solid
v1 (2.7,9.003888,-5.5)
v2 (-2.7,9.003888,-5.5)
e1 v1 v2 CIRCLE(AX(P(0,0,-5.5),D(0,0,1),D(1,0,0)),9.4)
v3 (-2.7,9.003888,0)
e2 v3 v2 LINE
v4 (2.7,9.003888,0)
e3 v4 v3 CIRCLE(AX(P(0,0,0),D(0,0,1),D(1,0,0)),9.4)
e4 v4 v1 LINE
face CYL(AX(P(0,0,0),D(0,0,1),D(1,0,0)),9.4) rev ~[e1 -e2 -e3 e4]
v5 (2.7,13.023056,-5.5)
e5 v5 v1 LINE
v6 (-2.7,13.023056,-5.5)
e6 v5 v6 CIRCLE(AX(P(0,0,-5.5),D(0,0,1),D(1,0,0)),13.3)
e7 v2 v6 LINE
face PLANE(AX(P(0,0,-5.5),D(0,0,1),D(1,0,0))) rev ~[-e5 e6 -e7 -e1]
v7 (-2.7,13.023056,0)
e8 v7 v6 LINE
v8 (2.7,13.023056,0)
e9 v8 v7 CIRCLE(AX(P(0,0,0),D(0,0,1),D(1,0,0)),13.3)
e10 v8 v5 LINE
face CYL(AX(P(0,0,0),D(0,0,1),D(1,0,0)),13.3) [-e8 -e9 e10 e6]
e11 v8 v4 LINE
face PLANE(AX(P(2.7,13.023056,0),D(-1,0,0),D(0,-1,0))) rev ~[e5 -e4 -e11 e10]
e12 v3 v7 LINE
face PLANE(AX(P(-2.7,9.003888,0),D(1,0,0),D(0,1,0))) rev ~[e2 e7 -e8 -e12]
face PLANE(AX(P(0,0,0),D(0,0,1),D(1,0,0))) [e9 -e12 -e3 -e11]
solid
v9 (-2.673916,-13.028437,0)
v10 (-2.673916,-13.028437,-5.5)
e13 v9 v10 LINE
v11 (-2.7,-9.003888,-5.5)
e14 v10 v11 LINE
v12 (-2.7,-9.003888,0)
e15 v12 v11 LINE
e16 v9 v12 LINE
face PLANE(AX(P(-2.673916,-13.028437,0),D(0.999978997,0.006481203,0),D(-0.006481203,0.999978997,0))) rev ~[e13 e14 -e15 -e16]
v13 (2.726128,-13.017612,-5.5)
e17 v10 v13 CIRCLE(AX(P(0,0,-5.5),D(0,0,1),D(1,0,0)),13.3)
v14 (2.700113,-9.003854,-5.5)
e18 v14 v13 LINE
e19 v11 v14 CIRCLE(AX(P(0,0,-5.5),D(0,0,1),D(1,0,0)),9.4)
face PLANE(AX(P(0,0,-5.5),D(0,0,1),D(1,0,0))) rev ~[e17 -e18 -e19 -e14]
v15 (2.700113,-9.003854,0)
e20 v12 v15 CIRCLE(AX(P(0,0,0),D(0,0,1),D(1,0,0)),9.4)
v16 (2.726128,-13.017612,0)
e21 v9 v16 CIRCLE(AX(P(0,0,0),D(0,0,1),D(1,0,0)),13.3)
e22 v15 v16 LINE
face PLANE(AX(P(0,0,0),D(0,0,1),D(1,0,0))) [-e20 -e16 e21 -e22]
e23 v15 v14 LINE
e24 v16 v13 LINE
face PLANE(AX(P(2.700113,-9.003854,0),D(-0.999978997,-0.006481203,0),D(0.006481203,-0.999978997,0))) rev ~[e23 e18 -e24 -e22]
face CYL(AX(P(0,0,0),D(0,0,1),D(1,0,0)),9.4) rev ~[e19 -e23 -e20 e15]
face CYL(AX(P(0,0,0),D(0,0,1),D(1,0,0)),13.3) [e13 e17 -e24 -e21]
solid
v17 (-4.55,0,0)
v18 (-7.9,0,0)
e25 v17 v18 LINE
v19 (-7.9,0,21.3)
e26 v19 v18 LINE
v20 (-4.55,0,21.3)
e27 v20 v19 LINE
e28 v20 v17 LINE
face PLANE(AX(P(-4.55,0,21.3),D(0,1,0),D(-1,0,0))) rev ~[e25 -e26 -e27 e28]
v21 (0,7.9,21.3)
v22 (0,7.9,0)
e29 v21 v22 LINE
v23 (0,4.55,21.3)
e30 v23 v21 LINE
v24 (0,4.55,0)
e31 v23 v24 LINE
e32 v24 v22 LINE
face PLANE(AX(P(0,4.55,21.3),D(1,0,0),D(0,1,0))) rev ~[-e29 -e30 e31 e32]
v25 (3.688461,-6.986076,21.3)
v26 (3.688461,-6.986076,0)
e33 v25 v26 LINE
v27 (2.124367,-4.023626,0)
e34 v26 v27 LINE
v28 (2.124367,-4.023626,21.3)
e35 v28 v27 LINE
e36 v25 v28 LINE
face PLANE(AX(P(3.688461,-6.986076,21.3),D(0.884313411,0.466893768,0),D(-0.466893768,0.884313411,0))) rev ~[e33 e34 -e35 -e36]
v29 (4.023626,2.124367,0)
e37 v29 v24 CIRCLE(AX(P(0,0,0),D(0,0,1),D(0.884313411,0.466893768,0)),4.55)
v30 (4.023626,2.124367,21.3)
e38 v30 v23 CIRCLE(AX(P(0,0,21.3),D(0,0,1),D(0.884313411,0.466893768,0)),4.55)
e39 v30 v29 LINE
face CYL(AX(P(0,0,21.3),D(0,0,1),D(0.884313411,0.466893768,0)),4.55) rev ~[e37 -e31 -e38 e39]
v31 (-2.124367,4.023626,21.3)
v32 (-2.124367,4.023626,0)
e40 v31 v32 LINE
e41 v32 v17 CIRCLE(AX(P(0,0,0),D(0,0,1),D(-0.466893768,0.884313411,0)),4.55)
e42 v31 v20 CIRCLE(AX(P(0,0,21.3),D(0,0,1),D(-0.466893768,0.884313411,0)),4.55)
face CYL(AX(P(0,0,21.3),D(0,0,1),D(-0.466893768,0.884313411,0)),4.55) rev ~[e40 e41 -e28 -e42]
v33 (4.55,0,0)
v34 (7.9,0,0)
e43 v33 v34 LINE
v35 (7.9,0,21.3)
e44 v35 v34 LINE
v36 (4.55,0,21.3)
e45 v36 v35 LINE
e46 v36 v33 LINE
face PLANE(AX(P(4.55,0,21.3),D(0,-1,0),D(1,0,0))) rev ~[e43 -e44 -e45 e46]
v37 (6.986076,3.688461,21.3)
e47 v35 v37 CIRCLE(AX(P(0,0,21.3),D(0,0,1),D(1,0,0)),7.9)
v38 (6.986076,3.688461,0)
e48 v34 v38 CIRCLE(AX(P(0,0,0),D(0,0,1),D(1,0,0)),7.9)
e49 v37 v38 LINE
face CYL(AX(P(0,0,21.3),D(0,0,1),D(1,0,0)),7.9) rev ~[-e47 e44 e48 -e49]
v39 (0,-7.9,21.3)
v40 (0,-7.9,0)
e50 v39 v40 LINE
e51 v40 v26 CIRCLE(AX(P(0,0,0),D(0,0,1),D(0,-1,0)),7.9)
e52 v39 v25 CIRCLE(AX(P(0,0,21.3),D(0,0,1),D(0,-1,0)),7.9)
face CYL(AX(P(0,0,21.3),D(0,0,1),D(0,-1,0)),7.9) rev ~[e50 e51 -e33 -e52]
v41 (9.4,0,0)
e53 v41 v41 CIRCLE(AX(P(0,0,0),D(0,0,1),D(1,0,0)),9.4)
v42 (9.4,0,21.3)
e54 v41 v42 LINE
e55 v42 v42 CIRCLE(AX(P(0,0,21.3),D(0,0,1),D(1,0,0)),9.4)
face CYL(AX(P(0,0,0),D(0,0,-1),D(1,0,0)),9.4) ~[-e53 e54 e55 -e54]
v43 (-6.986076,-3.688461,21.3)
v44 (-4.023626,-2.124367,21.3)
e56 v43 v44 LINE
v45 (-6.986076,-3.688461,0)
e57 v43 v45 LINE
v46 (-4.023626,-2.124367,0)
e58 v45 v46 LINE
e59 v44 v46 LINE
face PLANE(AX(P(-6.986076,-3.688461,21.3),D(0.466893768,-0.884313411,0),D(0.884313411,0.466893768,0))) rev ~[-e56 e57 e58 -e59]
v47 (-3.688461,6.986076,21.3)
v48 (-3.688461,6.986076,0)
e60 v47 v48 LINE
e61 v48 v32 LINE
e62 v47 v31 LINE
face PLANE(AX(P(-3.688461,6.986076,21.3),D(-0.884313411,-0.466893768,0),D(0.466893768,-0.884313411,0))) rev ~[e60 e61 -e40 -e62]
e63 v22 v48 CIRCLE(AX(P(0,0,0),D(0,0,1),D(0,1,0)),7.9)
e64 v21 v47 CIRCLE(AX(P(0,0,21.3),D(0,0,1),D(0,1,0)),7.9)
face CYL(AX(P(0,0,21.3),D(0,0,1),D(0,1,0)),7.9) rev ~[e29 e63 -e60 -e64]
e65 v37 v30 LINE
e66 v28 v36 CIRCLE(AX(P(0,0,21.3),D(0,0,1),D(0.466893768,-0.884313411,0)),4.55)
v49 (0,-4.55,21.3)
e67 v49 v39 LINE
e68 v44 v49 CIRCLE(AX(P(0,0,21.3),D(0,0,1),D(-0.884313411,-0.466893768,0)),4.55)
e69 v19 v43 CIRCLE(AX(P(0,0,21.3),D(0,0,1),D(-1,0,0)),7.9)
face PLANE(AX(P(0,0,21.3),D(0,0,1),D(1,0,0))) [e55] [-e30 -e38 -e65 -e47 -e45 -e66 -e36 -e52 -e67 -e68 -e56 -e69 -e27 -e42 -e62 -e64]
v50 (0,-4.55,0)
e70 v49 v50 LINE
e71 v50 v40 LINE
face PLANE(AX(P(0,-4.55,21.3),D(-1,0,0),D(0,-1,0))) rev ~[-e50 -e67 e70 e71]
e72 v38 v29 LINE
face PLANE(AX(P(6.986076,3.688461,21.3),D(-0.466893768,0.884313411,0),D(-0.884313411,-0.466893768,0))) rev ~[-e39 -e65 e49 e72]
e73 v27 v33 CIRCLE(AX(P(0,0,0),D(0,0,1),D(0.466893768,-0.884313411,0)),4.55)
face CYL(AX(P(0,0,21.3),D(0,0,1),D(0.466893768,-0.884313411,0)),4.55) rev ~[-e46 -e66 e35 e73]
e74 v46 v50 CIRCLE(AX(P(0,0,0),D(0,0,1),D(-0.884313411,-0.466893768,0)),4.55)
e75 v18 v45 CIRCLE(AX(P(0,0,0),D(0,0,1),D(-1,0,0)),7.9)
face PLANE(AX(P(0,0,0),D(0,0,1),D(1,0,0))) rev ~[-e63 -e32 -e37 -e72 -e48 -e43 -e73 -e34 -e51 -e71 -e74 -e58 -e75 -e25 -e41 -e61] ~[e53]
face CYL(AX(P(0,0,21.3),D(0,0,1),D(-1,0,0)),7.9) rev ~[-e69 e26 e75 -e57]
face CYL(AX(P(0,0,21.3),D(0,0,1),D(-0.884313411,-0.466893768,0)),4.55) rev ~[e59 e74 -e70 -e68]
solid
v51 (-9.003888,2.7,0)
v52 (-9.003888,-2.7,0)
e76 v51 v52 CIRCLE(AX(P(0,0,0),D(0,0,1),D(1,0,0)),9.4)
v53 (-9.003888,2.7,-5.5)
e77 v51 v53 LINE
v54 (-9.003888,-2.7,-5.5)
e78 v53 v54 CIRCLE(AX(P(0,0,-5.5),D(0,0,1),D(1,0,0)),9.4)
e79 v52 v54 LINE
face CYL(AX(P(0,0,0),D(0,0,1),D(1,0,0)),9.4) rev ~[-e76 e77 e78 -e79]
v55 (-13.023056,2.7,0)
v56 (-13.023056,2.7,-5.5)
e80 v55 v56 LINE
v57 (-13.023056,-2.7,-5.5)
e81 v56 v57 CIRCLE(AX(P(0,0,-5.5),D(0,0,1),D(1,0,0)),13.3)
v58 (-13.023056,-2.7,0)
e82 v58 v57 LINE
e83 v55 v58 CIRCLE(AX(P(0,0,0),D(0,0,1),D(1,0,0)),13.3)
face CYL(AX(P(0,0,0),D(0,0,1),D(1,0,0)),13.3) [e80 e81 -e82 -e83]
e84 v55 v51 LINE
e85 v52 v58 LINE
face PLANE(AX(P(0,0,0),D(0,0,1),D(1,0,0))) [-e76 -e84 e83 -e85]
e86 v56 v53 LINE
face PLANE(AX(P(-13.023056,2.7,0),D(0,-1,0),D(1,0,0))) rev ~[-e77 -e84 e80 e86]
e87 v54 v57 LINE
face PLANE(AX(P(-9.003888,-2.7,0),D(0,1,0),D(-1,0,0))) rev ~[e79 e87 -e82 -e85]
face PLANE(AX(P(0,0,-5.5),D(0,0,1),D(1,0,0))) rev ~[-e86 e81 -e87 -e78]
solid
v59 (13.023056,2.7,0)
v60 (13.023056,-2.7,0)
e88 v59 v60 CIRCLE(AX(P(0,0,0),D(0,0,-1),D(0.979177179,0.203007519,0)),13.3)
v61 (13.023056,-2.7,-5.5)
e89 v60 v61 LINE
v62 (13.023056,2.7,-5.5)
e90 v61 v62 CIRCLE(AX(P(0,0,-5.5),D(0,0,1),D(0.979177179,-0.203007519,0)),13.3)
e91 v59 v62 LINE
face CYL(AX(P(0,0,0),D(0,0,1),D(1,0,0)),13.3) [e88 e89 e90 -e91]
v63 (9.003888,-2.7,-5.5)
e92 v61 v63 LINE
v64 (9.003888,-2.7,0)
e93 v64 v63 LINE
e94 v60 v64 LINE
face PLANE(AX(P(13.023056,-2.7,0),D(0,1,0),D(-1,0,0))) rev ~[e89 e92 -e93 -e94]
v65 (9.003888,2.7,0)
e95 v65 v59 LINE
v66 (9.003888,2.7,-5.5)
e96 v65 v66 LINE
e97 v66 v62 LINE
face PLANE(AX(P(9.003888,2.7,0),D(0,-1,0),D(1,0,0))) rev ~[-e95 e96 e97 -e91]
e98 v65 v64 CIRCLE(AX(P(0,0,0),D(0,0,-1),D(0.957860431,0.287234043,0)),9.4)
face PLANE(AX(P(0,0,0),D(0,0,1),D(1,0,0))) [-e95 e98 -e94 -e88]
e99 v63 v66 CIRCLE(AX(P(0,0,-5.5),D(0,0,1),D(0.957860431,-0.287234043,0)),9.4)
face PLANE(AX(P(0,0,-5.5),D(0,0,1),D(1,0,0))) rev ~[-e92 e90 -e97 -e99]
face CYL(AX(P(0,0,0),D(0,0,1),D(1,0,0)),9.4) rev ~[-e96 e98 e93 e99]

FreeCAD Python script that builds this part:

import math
import FreeCAD as App
import Part
import Sketcher

V = App.Vector
Q = App.Units.Quantity

doc = App.newDocument("Part")
body = doc.addObject("PartDesign::Body", "Body")
body.AllowCompound = True

# Sketch on XY plane
sketch1 = body.newObject("Sketcher::SketchObject", "Sketch")
sketch1.AttachmentSupport = (doc.getObject("XY_Plane"), [""])
sketch1.MapMode = "FlatFace"
sketch1.addGeometry(Part.Circle(V(0, 0, 0), V(0, 0, 1), 13), False)
sketch1.addGeometry(Part.Circle(V(0, 0, 0), V(0, 0, 1), 9), False)
sketch1.addConstraint(Sketcher.Constraint("Coincident", 0, 3, -1, 1))
sketch1.addConstraint(Sketcher.Constraint("Coincident", 1, 3, -1, 1))
sketch1.addConstraint(Sketcher.Constraint("Diameter", 0, Q("26.6 mm")))
sketch1.addConstraint(Sketcher.Constraint("Diameter", 1, Q("18.8 mm")))
pad1 = body.newObject("PartDesign::Pad", "Pad")
pad1.Profile = sketch1
pad1.Length = 5.5
pad1.Reversed = True

# Sketch on XY plane
sketch2 = body.newObject("Sketcher::SketchObject", "Sketch001")
sketch2.AttachmentSupport = (doc.getObject("XY_Plane"), [""])
sketch2.MapMode = "FlatFace"
sketch2.addGeometry(Part.LineSegment(V(13, -2.7, 0), V(9, -2.7, 0)), False)
sketch2.addGeometry(Part.ArcOfCircle(Part.Circle(V(0, 0, 0), V(0, 0, 1), 9.4), math.radians(-73), math.radians(-17)), False)
sketch2.addGeometry(Part.LineSegment(V(2.7, -9, 0), V(2.7, -13, 0)), False)
sketch2.addGeometry(Part.ArcOfCircle(Part.Circle(V(0, 0, 0), V(0, 0, 1), 13.3), math.radians(-78), math.radians(-12)), False)
sketch2.addGeometry(Part.ArcOfCircle(Part.Circle(V(0, 0, 0), V(0, 0, 1), 9.4), math.radians(17), math.radians(73)), False)
sketch2.addGeometry(Part.LineSegment(V(9, 2.7, 0), V(13, 2.7, 0)), False)
sketch2.addGeometry(Part.ArcOfCircle(Part.Circle(V(0, 0, 0), V(0, 0, 1), 13.3), math.radians(12), math.radians(78)), False)
sketch2.addGeometry(Part.LineSegment(V(2.7, 13, 0), V(2.7, 9, 0)), False)
sketch2.addGeometry(Part.ArcOfCircle(Part.Circle(V(0, 0, 0), V(0, 0, 1), 9.4), math.radians(107), math.radians(163)), False)
sketch2.addGeometry(Part.LineSegment(V(-2.7, 9, 0), V(-2.7, 13, 0)), False)
sketch2.addGeometry(Part.ArcOfCircle(Part.Circle(V(0, 0, 0), V(0, 0, 1), 13.3), math.radians(102), math.radians(168)), False)
sketch2.addGeometry(Part.LineSegment(V(-13, 2.7, 0), V(-9, 2.7, 0)), False)
sketch2.addGeometry(Part.LineSegment(V(-2.7, -13, 0), V(-2.7, -9, 0)), False)
sketch2.addGeometry(Part.ArcOfCircle(Part.Circle(V(0, 0, 0), V(0, 0, 1), 9.4), math.radians(-163), math.radians(-107)), False)
sketch2.addGeometry(Part.LineSegment(V(-9, -2.7, 0), V(-13, -2.7, 0)), False)
sketch2.addGeometry(Part.ArcOfCircle(Part.Circle(V(0, 0, 0), V(0, 0, 1), 13.3), math.radians(-168), math.radians(-102)), False)
sketch2.addConstraint(Sketcher.Constraint("Coincident", 0, 2, 1, 2))
sketch2.addConstraint(Sketcher.Constraint("Coincident", 1, 1, 2, 1))
sketch2.addConstraint(Sketcher.Constraint("Coincident", 2, 2, 3, 1))
sketch2.addConstraint(Sketcher.Constraint("Coincident", 3, 2, 0, 1))
sketch2.addConstraint(Sketcher.Constraint("Coincident", 4, 1, 5, 1))
sketch2.addConstraint(Sketcher.Constraint("Coincident", 5, 2, 6, 1))
sketch2.addConstraint(Sketcher.Constraint("Coincident", 6, 2, 7, 1))
sketch2.addConstraint(Sketcher.Constraint("Coincident", 7, 2, 4, 2))
sketch2.addConstraint(Sketcher.Constraint("Coincident", 8, 1, 9, 1))
sketch2.addConstraint(Sketcher.Constraint("Coincident", 9, 2, 10, 1))
sketch2.addConstraint(Sketcher.Constraint("Coincident", 10, 2, 11, 1))
sketch2.addConstraint(Sketcher.Constraint("Coincident", 11, 2, 8, 2))
sketch2.addConstraint(Sketcher.Constraint("Coincident", 12, 2, 13, 2))
sketch2.addConstraint(Sketcher.Constraint("Coincident", 13, 1, 14, 1))
sketch2.addConstraint(Sketcher.Constraint("Coincident", 14, 2, 15, 1))
sketch2.addConstraint(Sketcher.Constraint("Coincident", 15, 2, 12, 1))
sketch2.addConstraint(Sketcher.Constraint("Horizontal", 0))
sketch2.addConstraint(Sketcher.Constraint("Horizontal", 5))
sketch2.addConstraint(Sketcher.Constraint("Vertical", 7))
sketch2.addConstraint(Sketcher.Constraint("Vertical", 9))
sketch2.addConstraint(Sketcher.Constraint("Horizontal", 11))
sketch2.addConstraint(Sketcher.Constraint("Horizontal", 14))
sketch2.addConstraint(Sketcher.Constraint("Coincident", 1, 3, -1, 1))
sketch2.addConstraint(Sketcher.Constraint("Coincident", 3, 3, -1, 1))
sketch2.addConstraint(Sketcher.Constraint("Coincident", 4, 3, -1, 1))
sketch2.addConstraint(Sketcher.Constraint("Coincident", 6, 3, -1, 1))
sketch2.addConstraint(Sketcher.Constraint("Coincident", 8, 3, -1, 1))
sketch2.addConstraint(Sketcher.Constraint("Coincident", 10, 3, -1, 1))
sketch2.addConstraint(Sketcher.Constraint("Coincident", 13, 3, -1, 1))
sketch2.addConstraint(Sketcher.Constraint("Coincident", 15, 3, -1, 1))
sketch2.addConstraint(Sketcher.Constraint("Equal", 1, 4))
sketch2.addConstraint(Sketcher.Constraint("Equal", 3, 6))
sketch2.addConstraint(Sketcher.Constraint("Equal", 4, 8))
sketch2.addConstraint(Sketcher.Constraint("Equal", 6, 10))
sketch2.addConstraint(Sketcher.Constraint("Equal", 8, 13))
sketch2.addConstraint(Sketcher.Constraint("Equal", 10, 15))
sketch2.addConstraint(Sketcher.Constraint("Parallel", 2, 12))
sketch2.addConstraint(Sketcher.Constraint("Horizontal", 7, 2, 8, 1))
sketch2.addConstraint(Sketcher.Constraint("Horizontal", 5, 2, 10, 2))
sketch2.addConstraint(Sketcher.Constraint("Horizontal", 3, 2, 13, 1))
sketch2.addConstraint(Sketcher.Constraint("Vertical", 0, 2, 4, 1))
sketch2.addConstraint(Sketcher.Constraint("Vertical", 9, 2, 12, 2))
sketch2.addConstraint(Sketcher.Constraint("Equal", 14, 7))
sketch2.addConstraint(Sketcher.Constraint("Radius", 1, Q("9.4 mm")))
sketch2.addConstraint(Sketcher.Constraint("Radius", 3, Q("13.3 mm")))
sketch2.addConstraint(Sketcher.Constraint("DistanceY", 0, 2, -1, 1, Q("2.7 mm")))
sketch2.addConstraint(Sketcher.Constraint("DistanceY", 2, 2, 1, 1, Q("4.013758 mm")))
sketch2.addConstraint(Sketcher.Constraint("DistanceX", 2, 2, 0, 2, Q("6.27776 mm")))
pocket1 = body.newObject("PartDesign::Pocket", "Pocket")
pocket1.Profile = sketch2
pocket1.Length = 25
body2 = doc.addObject("PartDesign::Body", "Body001")

# Sketch on XY plane
sketch3 = body2.newObject("Sketcher::SketchObject", "Sketch002")
sketch3.AttachmentSupport = (doc.getObject("XY_Plane001"), [""])
sketch3.MapMode = "FlatFace"
sketch3.addGeometry(Part.Circle(V(0, 0, 0), V(0, 0, 1), 9), False)
sketch3.addConstraint(Sketcher.Constraint("Coincident", 0, 3, -1, 1))
sketch3.addConstraint(Sketcher.Constraint("Diameter", 0, Q("18.8 mm")))
pad2 = body2.newObject("PartDesign::Pad", "Pad001")
pad2.Profile = sketch3
pad2.Length = 21.3

# Sketch on XY plane
sketch4 = body2.newObject("Sketcher::SketchObject", "Sketch003")
sketch4.AttachmentSupport = (doc.getObject("XY_Plane001"), [""])
sketch4.MapMode = "FlatFace"
sketch4.AttachmentOffset = App.Placement(V(0, 0, 21.3), App.Rotation())
sketch4.addGeometry(Part.LineSegment(V(4.5, 0, 0), V(7.9, 0, 0)), False)
sketch4.addGeometry(Part.ArcOfCircle(Part.Circle(V(0, 0, 0), V(0, 0, 1), 7.9), math.radians(0), math.radians(28)), False)
sketch4.addGeometry(Part.LineSegment(V(7, 3.7, 0), V(4, 2.1, 0)), False)
sketch4.addGeometry(Part.ArcOfCircle(Part.Circle(V(0, 0, 0), V(0, 0, 1), 4.5), math.radians(28), math.radians(90)), False)
sketch4.addGeometry(Part.LineSegment(V(0, 4.5, 0), V(0, 7.9, 0)), False)
sketch4.addGeometry(Part.ArcOfCircle(Part.Circle(V(0, 0, 0), V(0, 0, 1), 7.9), math.radians(90), math.radians(118)), False)
sketch4.addGeometry(Part.LineSegment(V(-3.7, 7, 0), V(-2.1, 4, 0)), False)
sketch4.addGeometry(Part.ArcOfCircle(Part.Circle(V(0, 0, 0), V(0, 0, 1), 4.5), math.radians(118), math.radians(180)), False)
sketch4.addGeometry(Part.LineSegment(V(-4.5, 0, 0), V(-7.9, 0, 0)), False)
sketch4.addGeometry(Part.ArcOfCircle(Part.Circle(V(0, 0, 0), V(0, 0, 1), 7.9), math.radians(180), math.radians(208)), False)
sketch4.addGeometry(Part.LineSegment(V(-7, -3.7, 0), V(-4, -2.1, 0)), False)
sketch4.addGeometry(Part.ArcOfCircle(Part.Circle(V(0, 0, 0), V(0, 0, 1), 4.5), math.radians(-152), math.radians(-90)), False)
sketch4.addGeometry(Part.LineSegment(V(0, -4.5, 0), V(0, -7.9, 0)), False)
sketch4.addGeometry(Part.ArcOfCircle(Part.Circle(V(0, 0, 0), V(0, 0, 1), 7.9), math.radians(-90), math.radians(-62)), False)
sketch4.addGeometry(Part.LineSegment(V(3.7, -7, 0), V(2.1, -4, 0)), False)
sketch4.addGeometry(Part.ArcOfCircle(Part.Circle(V(0, 0, 0), V(0, 0, 1), 4.5), math.radians(-62), math.radians(0)), False)
sketch4.addConstraint(Sketcher.Constraint("Coincident", 0, 2, 1, 1))
sketch4.addConstraint(Sketcher.Constraint("Coincident", 1, 2, 2, 1))
sketch4.addConstraint(Sketcher.Constraint("Coincident", 2, 2, 3, 1))
sketch4.addConstraint(Sketcher.Constraint("Coincident", 3, 2, 4, 1))
sketch4.addConstraint(Sketcher.Constraint("Coincident", 4, 2, 5, 1))
sketch4.addConstraint(Sketcher.Constraint("Coincident", 5, 2, 6, 1))
sketch4.addConstraint(Sketcher.Constraint("Coincident", 6, 2, 7, 1))
sketch4.addConstraint(Sketcher.Constraint("Coincident", 7, 2, 8, 1))
sketch4.addConstraint(Sketcher.Constraint("Coincident", 8, 2, 9, 1))
sketch4.addConstraint(Sketcher.Constraint("Coincident", 9, 2, 10, 1))
sketch4.addConstraint(Sketcher.Constraint("Coincident", 10, 2, 11, 1))
sketch4.addConstraint(Sketcher.Constraint("Coincident", 11, 2, 12, 1))
sketch4.addConstraint(Sketcher.Constraint("Coincident", 12, 2, 13, 1))
sketch4.addConstraint(Sketcher.Constraint("Coincident", 13, 2, 14, 1))
sketch4.addConstraint(Sketcher.Constraint("Coincident", 14, 2, 15, 1))
sketch4.addConstraint(Sketcher.Constraint("Coincident", 15, 2, 0, 1))
sketch4.addConstraint(Sketcher.Constraint("Horizontal", 0))
sketch4.addConstraint(Sketcher.Constraint("Vertical", 4))
sketch4.addConstraint(Sketcher.Constraint("Horizontal", 8))
sketch4.addConstraint(Sketcher.Constraint("Vertical", 12))
sketch4.addConstraint(Sketcher.Constraint("Coincident", 1, 3, -1, 1))
sketch4.addConstraint(Sketcher.Constraint("Coincident", 3, 3, -1, 1))
sketch4.addConstraint(Sketcher.Constraint("Coincident", 5, 3, -1, 1))
sketch4.addConstraint(Sketcher.Constraint("Coincident", 7, 3, -1, 1))
sketch4.addConstraint(Sketcher.Constraint("Coincident", 9, 3, -1, 1))
sketch4.addConstraint(Sketcher.Constraint("Coincident", 11, 3, -1, 1))
sketch4.addConstraint(Sketcher.Constraint("Coincident", 13, 3, -1, 1))
sketch4.addConstraint(Sketcher.Constraint("Coincident", 15, 3, -1, 1))
sketch4.addConstraint(Sketcher.Constraint("Equal", 1, 5))
sketch4.addConstraint(Sketcher.Constraint("Equal", 3, 7))
sketch4.addConstraint(Sketcher.Constraint("Equal", 5, 9))
sketch4.addConstraint(Sketcher.Constraint("Equal", 7, 11))
sketch4.addConstraint(Sketcher.Constraint("Equal", 9, 13))
sketch4.addConstraint(Sketcher.Constraint("Equal", 11, 15))
sketch4.addConstraint(Sketcher.Constraint("PointOnObject", 0, 2, -1))
sketch4.addConstraint(Sketcher.Constraint("PointOnObject", 3, 2, -2))
sketch4.addConstraint(Sketcher.Constraint("PointOnObject", 7, 2, -1))
sketch4.addConstraint(Sketcher.Constraint("PointOnObject", 11, 2, -2))
sketch4.addConstraint(Sketcher.Constraint("Perpendicular", 2, 6))
sketch4.addConstraint(Sketcher.Constraint("Perpendicular", 6, 10))
sketch4.addConstraint(Sketcher.Constraint("Perpendicular", 10, 14))
sketch4.addConstraint(Sketcher.Constraint("Radius", 1, Q("7.9 mm")))
sketch4.addConstraint(Sketcher.Constraint("Radius", 3, Q("4.55 mm")))
sketch4.addConstraint(Sketcher.Constraint("DistanceY", -1, 1, 1, 2, Q("3.688461 mm")))
sketch4.addConstraint(Sketcher.Constraint("DistanceX", 5, 2, -1, 1, Q("3.688461 mm")))
sketch4.addConstraint(Sketcher.Constraint("DistanceY", 9, 2, -1, 1, Q("3.688461 mm")))
sketch4.addConstraint(Sketcher.Constraint("DistanceX", -1, 1, 13, 2, Q("3.688461 mm")))
sketch4.addConstraint(Sketcher.Constraint("DistanceX", 2, 2, 1, 2, Q("2.96245 mm")))
pocket2 = body2.newObject("PartDesign::Pocket", "Pocket001")
pocket2.Profile = sketch4
pocket2.Length = 25

doc.recompute()
